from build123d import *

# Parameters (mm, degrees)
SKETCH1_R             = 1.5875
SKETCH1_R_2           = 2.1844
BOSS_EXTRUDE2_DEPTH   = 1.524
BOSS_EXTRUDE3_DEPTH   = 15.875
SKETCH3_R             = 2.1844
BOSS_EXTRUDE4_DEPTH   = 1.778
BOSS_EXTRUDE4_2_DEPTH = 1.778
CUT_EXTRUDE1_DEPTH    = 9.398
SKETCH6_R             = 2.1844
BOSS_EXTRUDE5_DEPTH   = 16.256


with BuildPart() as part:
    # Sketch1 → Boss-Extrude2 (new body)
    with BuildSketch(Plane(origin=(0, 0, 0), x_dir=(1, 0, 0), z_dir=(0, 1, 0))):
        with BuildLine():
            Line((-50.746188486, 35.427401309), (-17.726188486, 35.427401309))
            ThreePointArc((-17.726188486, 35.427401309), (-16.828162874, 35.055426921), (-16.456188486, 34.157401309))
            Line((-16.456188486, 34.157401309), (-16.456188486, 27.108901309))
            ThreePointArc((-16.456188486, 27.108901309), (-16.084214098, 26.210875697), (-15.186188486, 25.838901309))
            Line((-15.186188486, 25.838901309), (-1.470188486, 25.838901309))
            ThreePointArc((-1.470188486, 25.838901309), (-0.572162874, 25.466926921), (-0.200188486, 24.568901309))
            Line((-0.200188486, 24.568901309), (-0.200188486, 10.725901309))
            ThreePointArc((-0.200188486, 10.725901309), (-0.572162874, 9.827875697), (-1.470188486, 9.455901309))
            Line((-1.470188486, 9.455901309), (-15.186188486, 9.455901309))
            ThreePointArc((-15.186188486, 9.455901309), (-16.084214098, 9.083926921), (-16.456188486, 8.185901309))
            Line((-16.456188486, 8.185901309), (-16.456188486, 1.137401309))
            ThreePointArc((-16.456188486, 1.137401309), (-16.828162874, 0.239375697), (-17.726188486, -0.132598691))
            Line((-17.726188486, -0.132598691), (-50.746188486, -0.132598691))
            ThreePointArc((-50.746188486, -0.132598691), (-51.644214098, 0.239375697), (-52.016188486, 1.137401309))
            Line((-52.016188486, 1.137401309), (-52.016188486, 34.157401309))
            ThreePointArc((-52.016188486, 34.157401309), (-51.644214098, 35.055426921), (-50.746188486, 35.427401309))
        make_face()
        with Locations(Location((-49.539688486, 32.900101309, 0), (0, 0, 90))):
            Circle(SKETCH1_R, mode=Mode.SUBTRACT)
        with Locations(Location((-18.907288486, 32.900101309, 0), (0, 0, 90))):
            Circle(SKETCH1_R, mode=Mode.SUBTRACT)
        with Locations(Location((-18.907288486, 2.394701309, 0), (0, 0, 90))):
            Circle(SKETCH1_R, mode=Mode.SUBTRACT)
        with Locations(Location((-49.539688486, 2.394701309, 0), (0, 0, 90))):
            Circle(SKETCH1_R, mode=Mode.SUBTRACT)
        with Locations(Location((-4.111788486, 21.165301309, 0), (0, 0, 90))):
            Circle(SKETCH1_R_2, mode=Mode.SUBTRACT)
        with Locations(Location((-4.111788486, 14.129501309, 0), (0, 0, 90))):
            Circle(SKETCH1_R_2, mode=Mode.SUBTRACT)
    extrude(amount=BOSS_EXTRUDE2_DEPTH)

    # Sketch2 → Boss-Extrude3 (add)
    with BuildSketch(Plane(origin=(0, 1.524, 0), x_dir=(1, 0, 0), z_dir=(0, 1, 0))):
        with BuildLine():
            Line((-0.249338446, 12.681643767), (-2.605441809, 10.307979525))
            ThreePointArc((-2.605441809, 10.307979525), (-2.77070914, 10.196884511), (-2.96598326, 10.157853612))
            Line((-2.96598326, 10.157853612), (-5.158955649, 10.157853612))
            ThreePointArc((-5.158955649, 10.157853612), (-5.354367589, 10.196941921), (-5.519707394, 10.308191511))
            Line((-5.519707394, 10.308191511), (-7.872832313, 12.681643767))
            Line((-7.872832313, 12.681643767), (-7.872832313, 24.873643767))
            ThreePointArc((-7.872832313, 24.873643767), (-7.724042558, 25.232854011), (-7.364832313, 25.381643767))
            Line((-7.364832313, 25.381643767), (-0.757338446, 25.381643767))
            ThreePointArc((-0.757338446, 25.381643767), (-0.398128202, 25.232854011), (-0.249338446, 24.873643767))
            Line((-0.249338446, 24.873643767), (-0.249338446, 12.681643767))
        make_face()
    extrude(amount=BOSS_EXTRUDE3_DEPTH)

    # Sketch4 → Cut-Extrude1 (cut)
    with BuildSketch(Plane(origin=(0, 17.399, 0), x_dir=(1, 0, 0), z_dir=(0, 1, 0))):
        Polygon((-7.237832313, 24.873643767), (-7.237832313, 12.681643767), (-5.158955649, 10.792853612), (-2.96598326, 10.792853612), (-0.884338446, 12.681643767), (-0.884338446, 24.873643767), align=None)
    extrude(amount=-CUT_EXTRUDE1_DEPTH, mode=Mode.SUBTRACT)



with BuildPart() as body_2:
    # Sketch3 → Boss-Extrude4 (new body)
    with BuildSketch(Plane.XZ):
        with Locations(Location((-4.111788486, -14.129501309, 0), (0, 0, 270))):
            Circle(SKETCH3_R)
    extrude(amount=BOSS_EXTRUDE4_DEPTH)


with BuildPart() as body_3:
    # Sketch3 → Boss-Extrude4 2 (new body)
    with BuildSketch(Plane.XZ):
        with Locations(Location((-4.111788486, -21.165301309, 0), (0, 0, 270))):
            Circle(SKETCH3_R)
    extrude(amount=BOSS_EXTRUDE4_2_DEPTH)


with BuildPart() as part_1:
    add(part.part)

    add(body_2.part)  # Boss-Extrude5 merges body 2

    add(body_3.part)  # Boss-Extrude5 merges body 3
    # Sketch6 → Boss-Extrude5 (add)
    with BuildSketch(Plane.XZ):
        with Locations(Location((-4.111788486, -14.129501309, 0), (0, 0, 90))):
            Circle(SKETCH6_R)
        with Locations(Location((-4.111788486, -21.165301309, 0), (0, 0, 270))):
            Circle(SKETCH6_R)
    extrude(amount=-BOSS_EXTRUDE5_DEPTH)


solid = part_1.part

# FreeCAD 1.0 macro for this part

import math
import FreeCAD as App
import Part
import Sketcher
from FreeCAD import Vector
Q = App.Units.Quantity

doc = App.newDocument("Part")
body = doc.addObject("PartDesign::Body", "Body")

# Sketch on XZ plane
sketch1 = body.newObject("Sketcher::SketchObject", "Sketch")
sketch1.AttachmentSupport = (doc.getObject("XZ_Plane"), [""])
sketch1.MapMode = "FlatFace"
sketch1.addGeometry([
    Part.LineSegment(Vector(-17.726188, -35.427401, 0), Vector(-50.746188, -35.427401, 0)),  # 0
    Part.ArcOfCircle(Part.Circle(Vector(-50.746188, -34.157401, 0), Vector(0, 0, 1), 1.27), math.radians(180), math.radians(270)),  # 1
    Part.LineSegment(Vector(-52.016188, -34.157401, 0), Vector(-52.016188, -1.137401, 0)),  # 2
    Part.ArcOfCircle(Part.Circle(Vector(-50.746188, -1.137401, 0), Vector(0, 0, 1), 1.27), math.radians(90), math.radians(180)),  # 3
    Part.LineSegment(Vector(-50.746188, 0.132599, 0), Vector(-17.726188, 0.132599, 0)),  # 4
    Part.ArcOfCircle(Part.Circle(Vector(-17.726188, -1.137401, 0), Vector(0, 0, 1), 1.27), math.radians(0), math.radians(90)),  # 5
    Part.LineSegment(Vector(-16.456188, -1.137401, 0), Vector(-16.456188, -8.185901, 0)),  # 6
    Part.ArcOfCircle(Part.Circle(Vector(-15.186188, -8.185901, 0), Vector(0, 0, 1), 1.27), math.radians(180), math.radians(270)),  # 7
    Part.LineSegment(Vector(-15.186188, -9.455901, 0), Vector(-1.470188, -9.455901, 0)),  # 8
    Part.ArcOfCircle(Part.Circle(Vector(-1.470188, -10.725901, 0), Vector(0, 0, 1), 1.27), math.radians(0), math.radians(90)),  # 9
    Part.LineSegment(Vector(-0.200188, -10.725901, 0), Vector(-0.200188, -24.568901, 0)),  # 10
    Part.ArcOfCircle(Part.Circle(Vector(-1.470188, -24.568901, 0), Vector(0, 0, 1), 1.27), math.radians(-90), math.radians(0)),  # 11
    Part.LineSegment(Vector(-1.470188, -25.838901, 0), Vector(-15.186188, -25.838901, 0)),  # 12
    Part.ArcOfCircle(Part.Circle(Vector(-15.186188, -27.108901, 0), Vector(0, 0, 1), 1.27), math.radians(90), math.radians(180)),  # 13
    Part.LineSegment(Vector(-16.456188, -27.108901, 0), Vector(-16.456188, -34.157401, 0)),  # 14
    Part.ArcOfCircle(Part.Circle(Vector(-17.726188, -34.157401, 0), Vector(0, 0, 1), 1.27), math.radians(-90), math.radians(0)),  # 15
    Part.Circle(Vector(-18.907288, -2.394701, 0), Vector(0, 0, 1), 1.5875),  # 16
    Part.Circle(Vector(-4.111788, -14.129501, 0), Vector(0, 0, 1), 2.1844),  # 17
    Part.Circle(Vector(-49.539688, -2.394701, 0), Vector(0, 0, 1), 1.5875),  # 18
    Part.Circle(Vector(-4.111788, -21.165301, 0), Vector(0, 0, 1), 2.1844),  # 19
    Part.Circle(Vector(-18.907288, -32.900101, 0), Vector(0, 0, 1), 1.5875),  # 20
    Part.Circle(Vector(-49.539688, -32.900101, 0), Vector(0, 0, 1), 1.5875),  # 21
], False)
sketch1.addConstraint([
    Sketcher.Constraint("Tangent", 0, 2, 1, 2),
    Sketcher.Constraint("Tangent", 1, 1, 2, 1),
    Sketcher.Constraint("Tangent", 2, 2, 3, 2),
    Sketcher.Constraint("Tangent", 3, 1, 4, 1),
    Sketcher.Constraint("Tangent", 4, 2, 5, 2),
    Sketcher.Constraint("Tangent", 5, 1, 6, 1),
    Sketcher.Constraint("Tangent", 6, 2, 7, 1),
    Sketcher.Constraint("Tangent", 7, 2, 8, 1),
    Sketcher.Constraint("Tangent", 8, 2, 9, 2),
    Sketcher.Constraint("Tangent", 9, 1, 10, 1),
    Sketcher.Constraint("Tangent", 10, 2, 11, 2),
    Sketcher.Constraint("Tangent", 11, 1, 12, 1),
    Sketcher.Constraint("Tangent", 12, 2, 13, 1),
    Sketcher.Constraint("Tangent", 13, 2, 14, 1),
    Sketcher.Constraint("Tangent", 14, 2, 15, 2),
    Sketcher.Constraint("Tangent", 15, 1, 0, 1),
    Sketcher.Constraint("Horizontal", 0),
    Sketcher.Constraint("Vertical", 2),
    Sketcher.Constraint("Horizontal", 4),
    Sketcher.Constraint("Vertical", 6),
    Sketcher.Constraint("Horizontal", 8),
    Sketcher.Constraint("Vertical", 10),
    Sketcher.Constraint("Horizontal", 12),
    Sketcher.Constraint("Vertical", 14),
    Sketcher.Constraint("Equal", 1, 3),
    Sketcher.Constraint("Equal", 3, 5),
    Sketcher.Constraint("Equal", 5, 7),
    Sketcher.Constraint("Equal", 7, 9),
    Sketcher.Constraint("Equal", 9, 11),
    Sketcher.Constraint("Equal", 11, 13),
    Sketcher.Constraint("Equal", 13, 15),
    Sketcher.Constraint("Equal", 16, 18),
    Sketcher.Constraint("Equal", 17, 19),
    Sketcher.Constraint("Equal", 18, 20),
    Sketcher.Constraint("Equal", 20, 21),
    Sketcher.Constraint("Horizontal", 16, 3, 18, 3),
    Sketcher.Constraint("Horizontal", 20, 3, 21, 3),
    Sketcher.Constraint("Vertical", 7, 3, 13, 3),
    Sketcher.Constraint("Vertical", 17, 3, 19, 3),
    Sketcher.Constraint("Vertical", 16, 3, 20, 3),
    Sketcher.Constraint("Vertical", 18, 3, 21, 3),
    Sketcher.Constraint("Equal", 4, 2),
    Sketcher.Constraint("Equal", 6, 14),
    Sketcher.Constraint("Radius", 1, Q("0.05 in")),
    Sketcher.Constraint("Diameter", 16, Q("0.125 in")),
    Sketcher.Constraint("Diameter", 17, Q("0.172 in")),
    Sketcher.Constraint("DistanceX", 0, 2, 0, 1, Q("1.3 in")),
    Sketcher.Constraint("DistanceX", 8, 1, 8, 2, Q("0.54 in")),
    Sketcher.Constraint("DistanceY", 10, 2, 10, 1, Q("0.545 in")),
    Sketcher.Constraint("DistanceY", 7, 3, 16, 3, Q("0.228 in")),
    Sketcher.Constraint("DistanceX", 17, 3, 9, 3, Q("0.104 in")),
    Sketcher.Constraint("DistanceY", 17, 3, 9, 3, Q("0.134 in")),
    Sketcher.Constraint("DistanceX", 18, 3, 16, 3, Q("1.206 in")),
    Sketcher.Constraint("DistanceY", 11, 3, 19, 3, Q("0.134 in")),
    Sketcher.Constraint("DistanceY", 20, 3, 13, 3, Q("0.228 in")),
    Sketcher.Constraint("DistanceX", 16, 3, 5, 3, Q("0.0465 in")),
    Sketcher.Constraint("DistanceY", 1, 3, -1, 1, 34.157401),
    Sketcher.Constraint("DistanceX", 1, 3, -1, 1, 50.746188),
])
pad1 = body.newObject("PartDesign::Pad", "Pad")
pad1.Profile = sketch1
pad1.Length = Q("0.06 in")
pad1.Reversed = True

# Sketch on XZ plane
sketch2 = body.newObject("Sketcher::SketchObject", "Sketch001")
sketch2.AttachmentSupport = (doc.getObject("XZ_Plane"), [""])
sketch2.MapMode = "FlatFace"
sketch2.AttachmentOffset = App.Placement(Vector(0, 0, -0.06 * 25.4), App.Rotation())
sketch2.addGeometry([
    Part.LineSegment(Vector(-2.605442, -10.30798, 0), Vector(-0.249338, -12.681644, 0)),  # 0
    Part.LineSegment(Vector(-0.249338, -12.681644, 0), Vector(-0.249338, -24.873644, 0)),  # 1
    Part.ArcOfCircle(Part.Circle(Vector(-0.757338, -24.873644, 0), Vector(0, 0, 1), 0.508), math.radians(-90), math.radians(0)),  # 2
    Part.LineSegment(Vector(-0.757338, -25.381644, 0), Vector(-7.364832, -25.381644, 0)),  # 3
    Part.ArcOfCircle(Part.Circle(Vector(-7.364832, -24.873644, 0), Vector(0, 0, 1), 0.508), math.radians(-180), math.radians(-90)),  # 4
    Part.LineSegment(Vector(-7.872832, -24.873644, 0), Vector(-7.872832, -12.681644, 0)),  # 5
    Part.LineSegment(Vector(-7.872832, -12.681644, 0), Vector(-5.519707, -10.308192, 0)),  # 6
    Part.ArcOfCircle(Part.Circle(Vector(-5.158956, -10.665854, 0), Vector(0, 0, 1), 0.508), math.radians(90), math.radians(135.246408)),  # 7
    Part.LineSegment(Vector(-5.158956, -10.157854, 0), Vector(-2.965983, -10.157854, 0)),  # 8
    Part.ArcOfCircle(Part.Circle(Vector(-2.965983, -10.665854, 0), Vector(0, 0, 1), 0.508), math.radians(44.787271), math.radians(90)),  # 9
], False)
sketch2.addConstraint([
    Sketcher.Constraint("Coincident", 0, 2, 1, 1),
    Sketcher.Constraint("Tangent", 1, 2, 2, 2),
    Sketcher.Constraint("Tangent", 2, 1, 3, 1),
    Sketcher.Constraint("Tangent", 3, 2, 4, 2),
    Sketcher.Constraint("Tangent", 4, 1, 5, 1),
    Sketcher.Constraint("Coincident", 5, 2, 6, 1),
    Sketcher.Constraint("Tangent", 6, 2, 7, 2),
    Sketcher.Constraint("Tangent", 7, 1, 8, 1),
    Sketcher.Constraint("Tangent", 8, 2, 9, 2),
    Sketcher.Constraint("Tangent", 9, 1, 0, 1),
    Sketcher.Constraint("Vertical", 1),
    Sketcher.Constraint("Horizontal", 3),
    Sketcher.Constraint("Vertical", 5),
    Sketcher.Constraint("Horizontal", 8),
    Sketcher.Constraint("Equal", 2, 4),
    Sketcher.Constraint("Equal", 4, 7),
    Sketcher.Constraint("Equal", 7, 9),
    Sketcher.Constraint("Horizontal", 0, 2, 5, 2),
    Sketcher.Constraint("Radius", 2, Q("0.02 in")),
    Sketcher.Constraint("DistanceY", 1, 2, 1, 1, Q("0.48 in")),
    Sketcher.Constraint("DistanceX", 3, 2, 3, 1, 6.607494),
    Sketcher.Constraint("DistanceX", 8, 1, 8, 2, 2.192972),
    Sketcher.Constraint("DistanceX", 2, 3, -1, 1, 0.757338),
    Sketcher.Constraint("DistanceY", 6, 2, -1, 1, 10.308192),
    Sketcher.Constraint("DistanceX", 9, 1, -1, 1, 2.605442),
    Sketcher.Constraint("DistanceY", 9, 1, -1, 1, 10.30798),
])
pad2 = body.newObject("PartDesign::Pad", "Pad001")
pad2.Profile = sketch2
pad2.Length = Q("0.625 in")
pad2.Reversed = True

# Sketch on XZ plane
sketch3 = body.newObject("Sketcher::SketchObject", "Sketch002")
sketch3.AttachmentSupport = (doc.getObject("XZ_Plane"), [""])
sketch3.MapMode = "FlatFace"
sketch3.AttachmentOffset = App.Placement(Vector(0, 0, -0.685 * 25.4), App.Rotation())
sketch3.addGeometry([
    Part.LineSegment(Vector(-7.237832, -24.873644, 0), Vector(-7.237832, -12.681644, 0)),  # 0
    Part.LineSegment(Vector(-7.237832, -12.681644, 0), Vector(-5.158956, -10.792854, 0)),  # 1
    Part.LineSegment(Vector(-5.158956, -10.792854, 0), Vector(-2.965983, -10.792854, 0)),  # 2
    Part.LineSegment(Vector(-2.965983, -10.792854, 0), Vector(-0.884338, -12.681644, 0)),  # 3
    Part.LineSegment(Vector(-0.884338, -12.681644, 0), Vector(-0.884338, -24.873644, 0)),  # 4
    Part.LineSegment(Vector(-0.884338, -24.873644, 0), Vector(-7.237832, -24.873644, 0)),  # 5
], False)
sketch3.addConstraint([
    Sketcher.Constraint("Coincident", 0, 2, 1, 1),
    Sketcher.Constraint("Coincident", 1, 2, 2, 1),
    Sketcher.Constraint("Coincident", 2, 2, 3, 1),
    Sketcher.Constraint("Coincident", 3, 2, 4, 1),
    Sketcher.Constraint("Coincident", 4, 2, 5, 1),
    Sketcher.Constraint("Coincident", 5, 2, 0, 1),
    Sketcher.Constraint("Vertical", 0),
    Sketcher.Constraint("Horizontal", 2),
    Sketcher.Constraint("Vertical", 4),
    Sketcher.Constraint("Horizontal", 5),
    Sketcher.Constraint("Horizontal", 0, 2, 3, 2),
    Sketcher.Constraint("DistanceY", 0, 1, 0, 2, Q("0.48 in")),
    Sketcher.Constraint("Distance", 3, 2.810831),
    Sketcher.Constraint("DistanceX", 2, 1, 2, 2, 2.192972),
    Sketcher.Constraint("DistanceX", 5, 2, 5, 1, 6.353494),
    Sketcher.Constraint("DistanceX", 3, 2, -1, 1, 0.884338),
    Sketcher.Constraint("DistanceY", 0, 2, 1, 2, 1.88879),
    Sketcher.Constraint("DistanceY", 0, 2, -1, 1, 12.681644),
])
pocket1 = body.newObject("PartDesign::Pocket", "Pocket")
pocket1.Profile = sketch3
pocket1.Length = Q("0.37 in")
pocket1.Reversed = True
body2 = doc.addObject("PartDesign::Body", "Body001")

# Sketch on XZ plane
sketch4 = body2.newObject("Sketcher::SketchObject", "Sketch003")
sketch4.AttachmentSupport = (doc.getObject("XZ_Plane001"), [""])
sketch4.MapMode = "FlatFace"
sketch4.addGeometry(Part.Circle(Vector(-4.111788, -14.129501, 0), Vector(0, 0, 1), 2.1844), False)
sketch4.addConstraint([
    Sketcher.Constraint("Diameter", 0, Q("0.172 in")),
    Sketcher.Constraint("DistanceY", 0, 3, -1, 1, 14.129501),
    Sketcher.Constraint("DistanceX", 0, 3, -1, 1, 4.111788),
])
pad3 = body2.newObject("PartDesign::Pad", "Pad002")
pad3.Profile = sketch4
pad3.Length = Q("0.07 in")
body3 = doc.addObject("PartDesign::Body", "Body002")

# Sketch on XZ plane
sketch5 = body3.newObject("Sketcher::SketchObject", "Sketch004")
sketch5.AttachmentSupport = (doc.getObject("XZ_Plane002"), [""])
sketch5.MapMode = "FlatFace"
sketch5.addGeometry(Part.Circle(Vector(-4.111788, -21.165301, 0), Vector(0, 0, 1), 2.1844), False)
sketch5.addConstraint([
    Sketcher.Constraint("Diameter", 0, Q("0.172 in")),
    Sketcher.Constraint("DistanceY", 0, 3, -1, 1, 21.165301),
    Sketcher.Constraint("DistanceX", 0, 3, -1, 1, 4.111788),
])
pad4 = body3.newObject("PartDesign::Pad", "Pad003")
pad4.Profile = sketch5
pad4.Length = Q("0.07 in")
body.AllowCompound = True
doc.recompute()

boolean = body.newObject("PartDesign::Boolean", "Boolean")
boolean.Type = "Fuse"
boolean.addObjects([body2])
doc.recompute()

boolean2 = body.newObject("PartDesign::Boolean", "Boolean001")
boolean2.Type = "Fuse"
boolean2.addObjects([body3])

# Sketch on XZ plane
sketch6 = body.newObject("Sketcher::SketchObject", "Sketch005")
sketch6.AttachmentSupport = (doc.getObject("XZ_Plane"), [""])
sketch6.MapMode = "FlatFace"
sketch6.addGeometry([
    Part.Circle(Vector(-4.111788, -14.129501, 0), Vector(0, 0, 1), 2.1844),
    Part.Circle(Vector(-4.111788, -21.165301, 0), Vector(0, 0, 1), 2.1844),
], False)
sketch6.addConstraint([
    Sketcher.Constraint("Equal", 0, 1),
    Sketcher.Constraint("Vertical", 0, 3, 1, 3),
    Sketcher.Constraint("Diameter", 0, Q("0.172 in")),
    Sketcher.Constraint("DistanceY", 1, 3, 0, 3, Q("0.277 in")),
    Sketcher.Constraint("DistanceY", 0, 3, -1, 1, 14.129501),
    Sketcher.Constraint("DistanceX", 0, 3, -1, 1, 4.111788),
])
pad5 = body.newObject("PartDesign::Pad", "Pad004")
pad5.Profile = sketch6
pad5.Length = Q("0.64 in")
pad5.Reversed = True

doc.recompute()
